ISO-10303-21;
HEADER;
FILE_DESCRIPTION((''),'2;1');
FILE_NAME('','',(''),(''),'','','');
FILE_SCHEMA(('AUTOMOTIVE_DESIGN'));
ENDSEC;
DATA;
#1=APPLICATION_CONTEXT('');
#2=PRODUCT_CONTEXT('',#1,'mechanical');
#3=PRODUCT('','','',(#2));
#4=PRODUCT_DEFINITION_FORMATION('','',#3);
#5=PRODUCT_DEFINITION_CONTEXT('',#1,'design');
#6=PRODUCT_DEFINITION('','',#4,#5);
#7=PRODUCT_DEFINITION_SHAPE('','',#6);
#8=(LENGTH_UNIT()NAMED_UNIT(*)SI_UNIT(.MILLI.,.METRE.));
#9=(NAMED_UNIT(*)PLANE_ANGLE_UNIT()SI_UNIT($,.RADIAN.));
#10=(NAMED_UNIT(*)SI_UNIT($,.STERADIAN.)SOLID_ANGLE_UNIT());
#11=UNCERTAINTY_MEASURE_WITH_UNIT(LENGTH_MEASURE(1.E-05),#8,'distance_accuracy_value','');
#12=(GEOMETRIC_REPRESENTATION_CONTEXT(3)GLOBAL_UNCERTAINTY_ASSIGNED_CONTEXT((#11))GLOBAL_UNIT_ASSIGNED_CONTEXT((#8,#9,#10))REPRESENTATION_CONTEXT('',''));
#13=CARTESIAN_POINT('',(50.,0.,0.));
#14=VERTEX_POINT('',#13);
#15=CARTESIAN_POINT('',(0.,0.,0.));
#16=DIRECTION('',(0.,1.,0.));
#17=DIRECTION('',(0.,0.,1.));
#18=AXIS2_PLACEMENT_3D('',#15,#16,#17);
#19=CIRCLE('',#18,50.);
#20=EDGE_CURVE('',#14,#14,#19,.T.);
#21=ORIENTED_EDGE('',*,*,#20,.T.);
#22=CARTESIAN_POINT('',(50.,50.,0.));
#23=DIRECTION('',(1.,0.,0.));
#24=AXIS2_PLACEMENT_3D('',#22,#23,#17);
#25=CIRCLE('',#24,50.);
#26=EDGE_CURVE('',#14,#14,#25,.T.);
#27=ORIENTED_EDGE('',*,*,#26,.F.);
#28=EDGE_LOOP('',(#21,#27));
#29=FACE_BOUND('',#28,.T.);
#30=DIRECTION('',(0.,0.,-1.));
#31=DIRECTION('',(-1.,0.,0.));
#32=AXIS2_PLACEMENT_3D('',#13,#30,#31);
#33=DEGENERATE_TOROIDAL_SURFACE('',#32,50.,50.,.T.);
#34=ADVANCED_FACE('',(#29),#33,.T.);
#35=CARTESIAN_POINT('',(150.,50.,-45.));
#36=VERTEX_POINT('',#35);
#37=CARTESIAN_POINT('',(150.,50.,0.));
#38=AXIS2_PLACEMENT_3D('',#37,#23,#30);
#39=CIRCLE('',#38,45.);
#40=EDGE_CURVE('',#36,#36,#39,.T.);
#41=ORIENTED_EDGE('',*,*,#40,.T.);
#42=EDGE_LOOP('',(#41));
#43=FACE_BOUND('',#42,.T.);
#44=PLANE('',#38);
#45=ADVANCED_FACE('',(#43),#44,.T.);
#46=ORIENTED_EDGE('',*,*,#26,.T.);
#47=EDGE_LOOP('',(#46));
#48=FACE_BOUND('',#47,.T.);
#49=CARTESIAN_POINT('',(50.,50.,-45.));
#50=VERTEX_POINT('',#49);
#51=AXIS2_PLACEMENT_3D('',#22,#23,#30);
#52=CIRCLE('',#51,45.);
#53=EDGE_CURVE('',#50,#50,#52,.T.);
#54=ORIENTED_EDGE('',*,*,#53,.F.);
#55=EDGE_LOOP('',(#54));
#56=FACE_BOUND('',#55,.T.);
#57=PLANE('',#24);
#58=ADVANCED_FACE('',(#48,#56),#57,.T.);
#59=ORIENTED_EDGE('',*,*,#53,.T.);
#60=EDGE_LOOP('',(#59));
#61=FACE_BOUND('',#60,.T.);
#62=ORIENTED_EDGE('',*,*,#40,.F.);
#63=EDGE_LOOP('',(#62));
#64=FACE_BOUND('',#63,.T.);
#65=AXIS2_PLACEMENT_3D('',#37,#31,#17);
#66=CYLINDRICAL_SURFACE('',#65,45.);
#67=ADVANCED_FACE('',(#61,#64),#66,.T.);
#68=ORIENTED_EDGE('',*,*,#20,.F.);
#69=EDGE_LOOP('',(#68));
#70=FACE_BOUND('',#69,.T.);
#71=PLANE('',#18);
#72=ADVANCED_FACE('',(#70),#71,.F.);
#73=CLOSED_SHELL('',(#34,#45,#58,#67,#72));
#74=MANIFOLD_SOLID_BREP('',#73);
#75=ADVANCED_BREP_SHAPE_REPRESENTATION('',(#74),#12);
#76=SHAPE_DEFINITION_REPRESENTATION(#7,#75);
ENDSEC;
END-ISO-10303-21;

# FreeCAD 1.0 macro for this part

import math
import FreeCAD as App
import Part
import Sketcher
from FreeCAD import Vector
Q = App.Units.Quantity

doc = App.newDocument("Part")
body = doc.addObject("PartDesign::Body", "Body")

sketch1 = body.newObject("Sketcher::SketchObject", "Sketch")
sketch1.AttachmentSupport = (doc.getObject("XZ_Plane"), [""])
sketch1.MapMode = "FlatFace"
sketch1.addGeometry(Part.Circle(Vector(0, 0, 0), Vector(0, 0, 1), 50), False)
sketch1.addConstraint([
    Sketcher.Constraint("Coincident", 0, 3, -1, 1),
    Sketcher.Constraint("Diameter", 0, Q("100 mm")),
])

sketch2 = body.newObject("Sketcher::SketchObject", "Sketch001")
sketch2.AttachmentSupport = (doc.getObject("XY_Plane"), [""])
sketch2.MapMode = "FlatFace"
sketch2.addGeometry(Part.ArcOfCircle(Part.Circle(Vector(50, 0, 0), Vector(0, 0, 1), 50), math.radians(90), math.radians(180)), False)
sketch2.addConstraint([
    Sketcher.Constraint("Coincident", 0, 2, -1, 1),
    Sketcher.Constraint("PointOnObject", 0, 3, -1),
    Sketcher.Constraint("Radius", 0, Q("50 mm")),
    Sketcher.Constraint("DistanceX", -1, 1, 0, 1, Q("50 mm")),
])
doc.recompute()

additivepipe = body.newObject("PartDesign::AdditivePipe", "AdditivePipe")
additivepipe.Profile = sketch1
additivepipe.Spine = (sketch2, ["Edge1"])

sketch3 = body.newObject("Sketcher::SketchObject", "Sketch002")
sketch3.AttachmentSupport = (doc.getObject("YZ_Plane"), [""])
sketch3.MapMode = "FlatFace"
sketch3.AttachmentOffset = App.Placement(Vector(0, 0, 50), App.Rotation())
sketch3.addGeometry(Part.Circle(Vector(50, 0, 0), Vector(0, 0, 1), 45), False)
sketch3.addConstraint([
    Sketcher.Constraint("PointOnObject", 0, 3, -1),
    Sketcher.Constraint("Diameter", 0, Q("90 mm")),
    Sketcher.Constraint("DistanceX", -1, 1, 0, 3, Q("50 mm")),
])
pad1 = body.newObject("PartDesign::Pad", "Pad")
pad1.Profile = sketch3
pad1.Length = 100

doc.recompute()
